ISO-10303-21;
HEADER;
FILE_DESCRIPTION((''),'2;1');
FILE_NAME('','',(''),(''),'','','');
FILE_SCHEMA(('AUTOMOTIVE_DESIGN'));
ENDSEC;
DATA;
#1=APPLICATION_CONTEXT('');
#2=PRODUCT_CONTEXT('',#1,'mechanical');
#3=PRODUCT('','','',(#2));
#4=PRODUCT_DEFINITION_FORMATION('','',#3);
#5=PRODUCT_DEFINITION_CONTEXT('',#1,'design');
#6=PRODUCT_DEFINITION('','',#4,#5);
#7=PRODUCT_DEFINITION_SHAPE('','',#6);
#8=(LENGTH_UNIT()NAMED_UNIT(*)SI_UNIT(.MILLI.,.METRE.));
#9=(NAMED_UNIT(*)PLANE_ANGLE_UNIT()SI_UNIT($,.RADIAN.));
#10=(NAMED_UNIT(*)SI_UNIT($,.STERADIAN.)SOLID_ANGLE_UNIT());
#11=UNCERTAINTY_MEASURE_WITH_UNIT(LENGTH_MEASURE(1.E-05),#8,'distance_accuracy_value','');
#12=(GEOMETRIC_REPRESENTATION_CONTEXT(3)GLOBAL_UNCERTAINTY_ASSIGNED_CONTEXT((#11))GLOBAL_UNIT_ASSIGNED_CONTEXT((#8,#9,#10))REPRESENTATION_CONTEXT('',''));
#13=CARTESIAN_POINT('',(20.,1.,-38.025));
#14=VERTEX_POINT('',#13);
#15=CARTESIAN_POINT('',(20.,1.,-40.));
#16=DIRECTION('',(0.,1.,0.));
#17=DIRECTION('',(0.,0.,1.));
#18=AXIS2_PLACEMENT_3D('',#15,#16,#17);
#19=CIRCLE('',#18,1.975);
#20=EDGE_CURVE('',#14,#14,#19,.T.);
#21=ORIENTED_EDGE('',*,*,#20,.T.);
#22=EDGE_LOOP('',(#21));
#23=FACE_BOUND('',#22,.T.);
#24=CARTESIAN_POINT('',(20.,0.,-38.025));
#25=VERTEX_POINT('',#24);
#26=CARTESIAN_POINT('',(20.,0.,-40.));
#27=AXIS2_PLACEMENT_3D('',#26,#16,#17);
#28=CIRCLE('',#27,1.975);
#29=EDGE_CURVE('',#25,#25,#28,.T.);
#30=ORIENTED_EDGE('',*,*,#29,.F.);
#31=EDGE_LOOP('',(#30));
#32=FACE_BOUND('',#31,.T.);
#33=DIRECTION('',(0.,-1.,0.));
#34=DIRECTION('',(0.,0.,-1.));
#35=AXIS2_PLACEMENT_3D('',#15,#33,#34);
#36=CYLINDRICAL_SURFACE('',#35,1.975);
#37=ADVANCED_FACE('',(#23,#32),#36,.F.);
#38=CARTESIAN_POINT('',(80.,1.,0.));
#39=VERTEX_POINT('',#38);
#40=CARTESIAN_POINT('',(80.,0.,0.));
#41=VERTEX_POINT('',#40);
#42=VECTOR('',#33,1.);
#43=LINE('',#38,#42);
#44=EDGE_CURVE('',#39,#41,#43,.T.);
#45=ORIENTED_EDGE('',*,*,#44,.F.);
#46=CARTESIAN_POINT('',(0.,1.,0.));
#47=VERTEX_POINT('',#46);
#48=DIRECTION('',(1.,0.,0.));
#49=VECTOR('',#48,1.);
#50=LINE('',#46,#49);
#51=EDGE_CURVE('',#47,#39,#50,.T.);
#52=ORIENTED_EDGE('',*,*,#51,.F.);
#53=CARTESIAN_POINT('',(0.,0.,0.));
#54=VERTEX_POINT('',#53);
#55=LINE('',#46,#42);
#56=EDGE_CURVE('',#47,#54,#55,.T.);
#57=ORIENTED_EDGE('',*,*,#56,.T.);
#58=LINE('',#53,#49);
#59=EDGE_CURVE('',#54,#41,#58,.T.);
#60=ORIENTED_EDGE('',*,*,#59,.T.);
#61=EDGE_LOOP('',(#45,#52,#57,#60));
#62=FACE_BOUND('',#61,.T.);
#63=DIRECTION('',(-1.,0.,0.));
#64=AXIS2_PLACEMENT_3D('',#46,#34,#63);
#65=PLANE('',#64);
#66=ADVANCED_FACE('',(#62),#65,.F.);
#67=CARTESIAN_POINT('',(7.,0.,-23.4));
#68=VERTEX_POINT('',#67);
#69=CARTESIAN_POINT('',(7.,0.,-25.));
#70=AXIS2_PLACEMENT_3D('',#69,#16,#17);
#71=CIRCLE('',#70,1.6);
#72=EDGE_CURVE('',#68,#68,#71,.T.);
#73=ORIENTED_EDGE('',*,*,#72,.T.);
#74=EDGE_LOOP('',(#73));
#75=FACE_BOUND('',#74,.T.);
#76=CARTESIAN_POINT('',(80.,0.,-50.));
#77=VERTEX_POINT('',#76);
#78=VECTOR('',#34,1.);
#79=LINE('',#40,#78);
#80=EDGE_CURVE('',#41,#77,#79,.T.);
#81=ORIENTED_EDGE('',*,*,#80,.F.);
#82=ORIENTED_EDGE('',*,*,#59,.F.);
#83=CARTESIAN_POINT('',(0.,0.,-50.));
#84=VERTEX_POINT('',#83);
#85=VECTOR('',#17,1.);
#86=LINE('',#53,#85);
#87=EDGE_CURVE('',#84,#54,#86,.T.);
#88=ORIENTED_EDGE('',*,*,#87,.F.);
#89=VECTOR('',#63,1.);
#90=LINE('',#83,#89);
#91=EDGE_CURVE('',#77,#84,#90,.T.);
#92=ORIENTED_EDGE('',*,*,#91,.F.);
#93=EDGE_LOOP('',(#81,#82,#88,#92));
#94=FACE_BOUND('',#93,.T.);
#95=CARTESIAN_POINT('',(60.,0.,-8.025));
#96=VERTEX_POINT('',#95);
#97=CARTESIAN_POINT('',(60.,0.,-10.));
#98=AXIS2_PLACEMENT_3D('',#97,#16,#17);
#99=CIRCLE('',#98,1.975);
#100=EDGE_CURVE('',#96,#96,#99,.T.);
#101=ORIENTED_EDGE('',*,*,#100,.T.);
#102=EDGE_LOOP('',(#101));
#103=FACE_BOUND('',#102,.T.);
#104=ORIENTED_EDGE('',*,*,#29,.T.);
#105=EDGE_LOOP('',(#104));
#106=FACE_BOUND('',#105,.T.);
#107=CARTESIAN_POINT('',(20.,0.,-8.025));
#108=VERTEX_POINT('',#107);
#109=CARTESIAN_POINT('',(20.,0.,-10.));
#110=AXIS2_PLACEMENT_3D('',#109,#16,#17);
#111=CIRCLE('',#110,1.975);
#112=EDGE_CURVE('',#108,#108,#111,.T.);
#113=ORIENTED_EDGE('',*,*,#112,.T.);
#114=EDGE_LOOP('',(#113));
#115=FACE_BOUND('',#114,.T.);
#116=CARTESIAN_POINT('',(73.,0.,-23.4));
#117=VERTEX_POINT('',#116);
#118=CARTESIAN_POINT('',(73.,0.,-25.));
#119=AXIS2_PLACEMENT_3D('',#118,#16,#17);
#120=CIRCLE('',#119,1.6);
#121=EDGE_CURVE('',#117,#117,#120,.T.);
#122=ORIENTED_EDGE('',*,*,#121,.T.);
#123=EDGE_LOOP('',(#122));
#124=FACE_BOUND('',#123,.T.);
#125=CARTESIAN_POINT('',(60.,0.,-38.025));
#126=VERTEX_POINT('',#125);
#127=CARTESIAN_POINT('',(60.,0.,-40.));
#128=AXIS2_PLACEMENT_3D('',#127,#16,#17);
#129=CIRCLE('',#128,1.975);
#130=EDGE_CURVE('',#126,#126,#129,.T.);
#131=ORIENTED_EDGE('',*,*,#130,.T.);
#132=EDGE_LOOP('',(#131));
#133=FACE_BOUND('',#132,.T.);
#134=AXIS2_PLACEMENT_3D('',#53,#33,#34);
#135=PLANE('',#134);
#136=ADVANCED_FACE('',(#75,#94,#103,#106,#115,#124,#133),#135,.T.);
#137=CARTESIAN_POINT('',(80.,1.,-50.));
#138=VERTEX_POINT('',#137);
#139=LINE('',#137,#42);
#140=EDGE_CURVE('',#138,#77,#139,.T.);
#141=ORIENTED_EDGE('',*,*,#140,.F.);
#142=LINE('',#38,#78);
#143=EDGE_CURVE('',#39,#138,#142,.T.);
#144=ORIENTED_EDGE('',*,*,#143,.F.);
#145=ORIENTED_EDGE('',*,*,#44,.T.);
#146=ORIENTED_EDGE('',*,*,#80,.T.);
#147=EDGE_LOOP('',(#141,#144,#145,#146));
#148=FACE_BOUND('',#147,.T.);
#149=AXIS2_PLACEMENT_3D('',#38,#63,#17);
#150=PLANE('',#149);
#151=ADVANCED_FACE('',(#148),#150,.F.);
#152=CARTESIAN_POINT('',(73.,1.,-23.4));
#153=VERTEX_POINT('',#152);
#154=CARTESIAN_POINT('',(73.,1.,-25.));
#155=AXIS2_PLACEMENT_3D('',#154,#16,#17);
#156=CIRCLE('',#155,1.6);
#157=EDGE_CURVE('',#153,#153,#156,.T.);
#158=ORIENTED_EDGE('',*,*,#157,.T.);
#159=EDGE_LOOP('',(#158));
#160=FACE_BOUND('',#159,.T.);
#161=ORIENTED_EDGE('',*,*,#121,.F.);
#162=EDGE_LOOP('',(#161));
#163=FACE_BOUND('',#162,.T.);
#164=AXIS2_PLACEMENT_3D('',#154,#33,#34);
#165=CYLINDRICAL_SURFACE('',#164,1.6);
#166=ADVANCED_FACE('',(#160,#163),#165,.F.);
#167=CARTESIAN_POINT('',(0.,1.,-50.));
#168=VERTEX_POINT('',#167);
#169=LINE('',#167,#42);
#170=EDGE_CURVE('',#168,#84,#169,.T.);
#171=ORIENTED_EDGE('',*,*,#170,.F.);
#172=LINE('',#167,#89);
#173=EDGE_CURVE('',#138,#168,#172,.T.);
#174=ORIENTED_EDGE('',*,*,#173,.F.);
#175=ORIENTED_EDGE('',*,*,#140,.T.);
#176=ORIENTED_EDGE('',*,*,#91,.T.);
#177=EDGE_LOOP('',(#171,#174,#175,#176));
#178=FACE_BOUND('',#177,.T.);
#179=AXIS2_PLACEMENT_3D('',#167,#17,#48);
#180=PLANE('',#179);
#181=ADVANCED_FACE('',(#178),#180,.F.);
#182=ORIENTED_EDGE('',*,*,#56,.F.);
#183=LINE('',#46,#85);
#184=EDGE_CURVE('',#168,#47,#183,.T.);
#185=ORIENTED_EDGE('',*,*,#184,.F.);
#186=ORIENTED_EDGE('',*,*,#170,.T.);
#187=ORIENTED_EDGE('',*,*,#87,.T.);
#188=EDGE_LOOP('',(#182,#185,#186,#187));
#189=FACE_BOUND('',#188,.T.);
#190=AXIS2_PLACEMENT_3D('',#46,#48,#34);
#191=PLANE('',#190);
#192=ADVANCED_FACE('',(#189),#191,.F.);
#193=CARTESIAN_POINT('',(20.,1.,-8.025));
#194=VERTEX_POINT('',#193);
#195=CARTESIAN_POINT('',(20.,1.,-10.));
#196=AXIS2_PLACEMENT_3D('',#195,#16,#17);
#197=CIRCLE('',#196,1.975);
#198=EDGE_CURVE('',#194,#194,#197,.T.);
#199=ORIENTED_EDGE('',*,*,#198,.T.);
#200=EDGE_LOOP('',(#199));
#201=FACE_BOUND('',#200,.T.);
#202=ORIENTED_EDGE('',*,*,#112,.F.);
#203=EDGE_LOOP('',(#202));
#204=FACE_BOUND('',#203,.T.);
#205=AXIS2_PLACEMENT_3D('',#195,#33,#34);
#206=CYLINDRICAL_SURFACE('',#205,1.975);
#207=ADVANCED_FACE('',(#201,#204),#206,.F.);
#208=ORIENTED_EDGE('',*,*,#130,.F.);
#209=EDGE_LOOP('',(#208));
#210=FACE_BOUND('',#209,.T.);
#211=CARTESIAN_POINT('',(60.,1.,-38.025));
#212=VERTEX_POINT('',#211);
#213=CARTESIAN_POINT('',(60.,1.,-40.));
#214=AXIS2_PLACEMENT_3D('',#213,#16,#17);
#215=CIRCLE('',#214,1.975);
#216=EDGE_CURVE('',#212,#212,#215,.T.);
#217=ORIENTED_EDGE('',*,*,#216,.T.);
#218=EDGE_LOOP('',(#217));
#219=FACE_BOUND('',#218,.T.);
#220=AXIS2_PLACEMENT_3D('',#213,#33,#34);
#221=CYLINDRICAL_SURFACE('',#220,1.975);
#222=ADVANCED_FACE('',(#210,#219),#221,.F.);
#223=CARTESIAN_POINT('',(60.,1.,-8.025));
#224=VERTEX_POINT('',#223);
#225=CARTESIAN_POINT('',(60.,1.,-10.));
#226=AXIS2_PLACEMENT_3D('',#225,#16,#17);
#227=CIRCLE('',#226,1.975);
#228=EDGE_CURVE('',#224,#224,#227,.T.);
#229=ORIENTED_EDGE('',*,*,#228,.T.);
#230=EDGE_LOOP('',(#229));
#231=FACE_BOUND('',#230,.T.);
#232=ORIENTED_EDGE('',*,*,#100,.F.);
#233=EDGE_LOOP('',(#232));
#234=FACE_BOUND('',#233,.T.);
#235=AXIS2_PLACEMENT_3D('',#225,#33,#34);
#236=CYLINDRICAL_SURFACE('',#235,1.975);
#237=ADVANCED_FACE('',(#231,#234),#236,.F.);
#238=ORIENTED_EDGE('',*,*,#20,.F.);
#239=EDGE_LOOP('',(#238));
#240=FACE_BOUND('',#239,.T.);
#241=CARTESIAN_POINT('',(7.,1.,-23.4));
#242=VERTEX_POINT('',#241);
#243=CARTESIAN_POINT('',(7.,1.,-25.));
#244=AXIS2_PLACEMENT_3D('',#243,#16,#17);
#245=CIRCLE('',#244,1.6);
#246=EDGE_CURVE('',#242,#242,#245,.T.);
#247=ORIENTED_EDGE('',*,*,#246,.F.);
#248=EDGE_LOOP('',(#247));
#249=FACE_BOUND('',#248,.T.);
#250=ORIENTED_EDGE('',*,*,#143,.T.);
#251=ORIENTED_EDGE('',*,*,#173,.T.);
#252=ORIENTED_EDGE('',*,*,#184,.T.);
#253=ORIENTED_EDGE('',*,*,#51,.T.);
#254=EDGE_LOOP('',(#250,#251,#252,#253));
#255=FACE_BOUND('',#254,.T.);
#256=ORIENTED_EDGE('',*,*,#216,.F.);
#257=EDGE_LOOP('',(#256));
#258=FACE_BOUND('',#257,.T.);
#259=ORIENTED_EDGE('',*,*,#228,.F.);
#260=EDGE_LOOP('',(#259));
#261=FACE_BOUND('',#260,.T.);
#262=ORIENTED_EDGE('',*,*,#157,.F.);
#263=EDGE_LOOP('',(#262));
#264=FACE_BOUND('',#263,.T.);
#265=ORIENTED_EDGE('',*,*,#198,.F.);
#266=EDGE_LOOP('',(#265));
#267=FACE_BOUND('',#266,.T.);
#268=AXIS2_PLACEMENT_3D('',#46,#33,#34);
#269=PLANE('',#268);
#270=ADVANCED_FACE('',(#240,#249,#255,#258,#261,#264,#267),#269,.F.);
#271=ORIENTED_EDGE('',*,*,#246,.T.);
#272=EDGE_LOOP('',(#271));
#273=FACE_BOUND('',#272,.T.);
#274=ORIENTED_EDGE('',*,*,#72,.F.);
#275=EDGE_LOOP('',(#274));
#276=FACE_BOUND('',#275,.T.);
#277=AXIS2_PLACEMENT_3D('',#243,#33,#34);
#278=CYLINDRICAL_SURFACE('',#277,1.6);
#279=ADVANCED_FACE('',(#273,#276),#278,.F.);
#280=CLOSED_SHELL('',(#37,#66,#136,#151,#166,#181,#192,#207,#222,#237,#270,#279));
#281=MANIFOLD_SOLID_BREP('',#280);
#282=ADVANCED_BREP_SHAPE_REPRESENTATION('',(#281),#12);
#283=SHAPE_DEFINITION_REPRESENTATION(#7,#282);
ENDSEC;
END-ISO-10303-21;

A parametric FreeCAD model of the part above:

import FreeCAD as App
import Part
import Sketcher
Q = App.Units.Quantity


def add_polygon(sketch, points):
    """Adds a closed chain of lines whose ends are joined by coincident constraints."""
    first, n = sketch.GeometryCount, len(points)
    for a, b in zip(points, points[1:] + points[:1]):
        sketch.addGeometry(Part.LineSegment(App.Vector(*a, 0), App.Vector(*b, 0)), False)
    for i in range(n):
        sketch.addConstraint(Sketcher.Constraint("Coincident", first + i, 2, first + (i + 1) % n, 1))

doc = App.newDocument("Part")
body = doc.addObject("PartDesign::Body", "Body")

# Sketch on XZ plane
sketch1 = body.newObject("Sketcher::SketchObject", "Sketch")
sketch1.AttachmentSupport = (doc.getObject("XZ_Plane"), [""])
sketch1.MapMode = "FlatFace"
add_polygon(sketch1, [(0, -50), (0, 0), (80, 0), (80, -50)])  # lines 0-3
sketch1.addGeometry(Part.Circle(App.Vector(20, -10, 0), App.Vector(0, 0, 1), 2), False)  # 4
sketch1.addGeometry(Part.Circle(App.Vector(60, -10, 0), App.Vector(0, 0, 1), 2), False)  # 5
sketch1.addGeometry(Part.Circle(App.Vector(7, -25, 0), App.Vector(0, 0, 1), 1.6), False)  # 6
sketch1.addGeometry(Part.Circle(App.Vector(20, -40, 0), App.Vector(0, 0, 1), 2), False)  # 7
sketch1.addGeometry(Part.Circle(App.Vector(73, -25, 0), App.Vector(0, 0, 1), 1.6), False)  # 8
sketch1.addGeometry(Part.Circle(App.Vector(60, -40, 0), App.Vector(0, 0, 1), 2), False)  # 9
sketch1.addConstraint(Sketcher.Constraint("Vertical", 0))
sketch1.addConstraint(Sketcher.Constraint("Horizontal", 1))
sketch1.addConstraint(Sketcher.Constraint("Vertical", 2))
sketch1.addConstraint(Sketcher.Constraint("Horizontal", 3))
sketch1.addConstraint(Sketcher.Constraint("Coincident", 0, 2, -1, 1))
sketch1.addConstraint(Sketcher.Constraint("Equal", 4, 5))
sketch1.addConstraint(Sketcher.Constraint("Equal", 5, 7))
sketch1.addConstraint(Sketcher.Constraint("Equal", 6, 8))
sketch1.addConstraint(Sketcher.Constraint("Equal", 7, 9))
sketch1.addConstraint(Sketcher.Constraint("Horizontal", 4, 3, 5, 3))
sketch1.addConstraint(Sketcher.Constraint("Horizontal", 6, 3, 8, 3))
sketch1.addConstraint(Sketcher.Constraint("Horizontal", 7, 3, 9, 3))
sketch1.addConstraint(Sketcher.Constraint("Vertical", 4, 3, 7, 3))
sketch1.addConstraint(Sketcher.Constraint("Vertical", 5, 3, 9, 3))
sketch1.addConstraint(Sketcher.Constraint("Diameter", 6, Q("3.2 mm")))
sketch1.addConstraint(Sketcher.Constraint("Diameter", 4, Q("3.95 mm")))
sketch1.addConstraint(Sketcher.Constraint("DistanceX", 1, 1, 1, 2, Q("80 mm")))
sketch1.addConstraint(Sketcher.Constraint("DistanceY", 0, 1, 0, 2, Q("50 mm")))
sketch1.addConstraint(Sketcher.Constraint("DistanceX", -1, 1, 4, 3, Q("20 mm")))
sketch1.addConstraint(Sketcher.Constraint("DistanceY", 4, 3, -1, 1, Q("10 mm")))
sketch1.addConstraint(Sketcher.Constraint("DistanceX", -1, 1, 5, 3, Q("60 mm")))
sketch1.addConstraint(Sketcher.Constraint("DistanceX", -1, 1, 6, 3, Q("7 mm")))
sketch1.addConstraint(Sketcher.Constraint("DistanceY", 6, 3, -1, 1, Q("25 mm")))
sketch1.addConstraint(Sketcher.Constraint("DistanceY", 7, 3, -1, 1, Q("40 mm")))
sketch1.addConstraint(Sketcher.Constraint("DistanceX", -1, 1, 8, 3, Q("73 mm")))
pad1 = body.newObject("PartDesign::Pad", "Pad")
pad1.Profile = sketch1
pad1.Length = 1
pad1.Reversed = True

doc.recompute()
